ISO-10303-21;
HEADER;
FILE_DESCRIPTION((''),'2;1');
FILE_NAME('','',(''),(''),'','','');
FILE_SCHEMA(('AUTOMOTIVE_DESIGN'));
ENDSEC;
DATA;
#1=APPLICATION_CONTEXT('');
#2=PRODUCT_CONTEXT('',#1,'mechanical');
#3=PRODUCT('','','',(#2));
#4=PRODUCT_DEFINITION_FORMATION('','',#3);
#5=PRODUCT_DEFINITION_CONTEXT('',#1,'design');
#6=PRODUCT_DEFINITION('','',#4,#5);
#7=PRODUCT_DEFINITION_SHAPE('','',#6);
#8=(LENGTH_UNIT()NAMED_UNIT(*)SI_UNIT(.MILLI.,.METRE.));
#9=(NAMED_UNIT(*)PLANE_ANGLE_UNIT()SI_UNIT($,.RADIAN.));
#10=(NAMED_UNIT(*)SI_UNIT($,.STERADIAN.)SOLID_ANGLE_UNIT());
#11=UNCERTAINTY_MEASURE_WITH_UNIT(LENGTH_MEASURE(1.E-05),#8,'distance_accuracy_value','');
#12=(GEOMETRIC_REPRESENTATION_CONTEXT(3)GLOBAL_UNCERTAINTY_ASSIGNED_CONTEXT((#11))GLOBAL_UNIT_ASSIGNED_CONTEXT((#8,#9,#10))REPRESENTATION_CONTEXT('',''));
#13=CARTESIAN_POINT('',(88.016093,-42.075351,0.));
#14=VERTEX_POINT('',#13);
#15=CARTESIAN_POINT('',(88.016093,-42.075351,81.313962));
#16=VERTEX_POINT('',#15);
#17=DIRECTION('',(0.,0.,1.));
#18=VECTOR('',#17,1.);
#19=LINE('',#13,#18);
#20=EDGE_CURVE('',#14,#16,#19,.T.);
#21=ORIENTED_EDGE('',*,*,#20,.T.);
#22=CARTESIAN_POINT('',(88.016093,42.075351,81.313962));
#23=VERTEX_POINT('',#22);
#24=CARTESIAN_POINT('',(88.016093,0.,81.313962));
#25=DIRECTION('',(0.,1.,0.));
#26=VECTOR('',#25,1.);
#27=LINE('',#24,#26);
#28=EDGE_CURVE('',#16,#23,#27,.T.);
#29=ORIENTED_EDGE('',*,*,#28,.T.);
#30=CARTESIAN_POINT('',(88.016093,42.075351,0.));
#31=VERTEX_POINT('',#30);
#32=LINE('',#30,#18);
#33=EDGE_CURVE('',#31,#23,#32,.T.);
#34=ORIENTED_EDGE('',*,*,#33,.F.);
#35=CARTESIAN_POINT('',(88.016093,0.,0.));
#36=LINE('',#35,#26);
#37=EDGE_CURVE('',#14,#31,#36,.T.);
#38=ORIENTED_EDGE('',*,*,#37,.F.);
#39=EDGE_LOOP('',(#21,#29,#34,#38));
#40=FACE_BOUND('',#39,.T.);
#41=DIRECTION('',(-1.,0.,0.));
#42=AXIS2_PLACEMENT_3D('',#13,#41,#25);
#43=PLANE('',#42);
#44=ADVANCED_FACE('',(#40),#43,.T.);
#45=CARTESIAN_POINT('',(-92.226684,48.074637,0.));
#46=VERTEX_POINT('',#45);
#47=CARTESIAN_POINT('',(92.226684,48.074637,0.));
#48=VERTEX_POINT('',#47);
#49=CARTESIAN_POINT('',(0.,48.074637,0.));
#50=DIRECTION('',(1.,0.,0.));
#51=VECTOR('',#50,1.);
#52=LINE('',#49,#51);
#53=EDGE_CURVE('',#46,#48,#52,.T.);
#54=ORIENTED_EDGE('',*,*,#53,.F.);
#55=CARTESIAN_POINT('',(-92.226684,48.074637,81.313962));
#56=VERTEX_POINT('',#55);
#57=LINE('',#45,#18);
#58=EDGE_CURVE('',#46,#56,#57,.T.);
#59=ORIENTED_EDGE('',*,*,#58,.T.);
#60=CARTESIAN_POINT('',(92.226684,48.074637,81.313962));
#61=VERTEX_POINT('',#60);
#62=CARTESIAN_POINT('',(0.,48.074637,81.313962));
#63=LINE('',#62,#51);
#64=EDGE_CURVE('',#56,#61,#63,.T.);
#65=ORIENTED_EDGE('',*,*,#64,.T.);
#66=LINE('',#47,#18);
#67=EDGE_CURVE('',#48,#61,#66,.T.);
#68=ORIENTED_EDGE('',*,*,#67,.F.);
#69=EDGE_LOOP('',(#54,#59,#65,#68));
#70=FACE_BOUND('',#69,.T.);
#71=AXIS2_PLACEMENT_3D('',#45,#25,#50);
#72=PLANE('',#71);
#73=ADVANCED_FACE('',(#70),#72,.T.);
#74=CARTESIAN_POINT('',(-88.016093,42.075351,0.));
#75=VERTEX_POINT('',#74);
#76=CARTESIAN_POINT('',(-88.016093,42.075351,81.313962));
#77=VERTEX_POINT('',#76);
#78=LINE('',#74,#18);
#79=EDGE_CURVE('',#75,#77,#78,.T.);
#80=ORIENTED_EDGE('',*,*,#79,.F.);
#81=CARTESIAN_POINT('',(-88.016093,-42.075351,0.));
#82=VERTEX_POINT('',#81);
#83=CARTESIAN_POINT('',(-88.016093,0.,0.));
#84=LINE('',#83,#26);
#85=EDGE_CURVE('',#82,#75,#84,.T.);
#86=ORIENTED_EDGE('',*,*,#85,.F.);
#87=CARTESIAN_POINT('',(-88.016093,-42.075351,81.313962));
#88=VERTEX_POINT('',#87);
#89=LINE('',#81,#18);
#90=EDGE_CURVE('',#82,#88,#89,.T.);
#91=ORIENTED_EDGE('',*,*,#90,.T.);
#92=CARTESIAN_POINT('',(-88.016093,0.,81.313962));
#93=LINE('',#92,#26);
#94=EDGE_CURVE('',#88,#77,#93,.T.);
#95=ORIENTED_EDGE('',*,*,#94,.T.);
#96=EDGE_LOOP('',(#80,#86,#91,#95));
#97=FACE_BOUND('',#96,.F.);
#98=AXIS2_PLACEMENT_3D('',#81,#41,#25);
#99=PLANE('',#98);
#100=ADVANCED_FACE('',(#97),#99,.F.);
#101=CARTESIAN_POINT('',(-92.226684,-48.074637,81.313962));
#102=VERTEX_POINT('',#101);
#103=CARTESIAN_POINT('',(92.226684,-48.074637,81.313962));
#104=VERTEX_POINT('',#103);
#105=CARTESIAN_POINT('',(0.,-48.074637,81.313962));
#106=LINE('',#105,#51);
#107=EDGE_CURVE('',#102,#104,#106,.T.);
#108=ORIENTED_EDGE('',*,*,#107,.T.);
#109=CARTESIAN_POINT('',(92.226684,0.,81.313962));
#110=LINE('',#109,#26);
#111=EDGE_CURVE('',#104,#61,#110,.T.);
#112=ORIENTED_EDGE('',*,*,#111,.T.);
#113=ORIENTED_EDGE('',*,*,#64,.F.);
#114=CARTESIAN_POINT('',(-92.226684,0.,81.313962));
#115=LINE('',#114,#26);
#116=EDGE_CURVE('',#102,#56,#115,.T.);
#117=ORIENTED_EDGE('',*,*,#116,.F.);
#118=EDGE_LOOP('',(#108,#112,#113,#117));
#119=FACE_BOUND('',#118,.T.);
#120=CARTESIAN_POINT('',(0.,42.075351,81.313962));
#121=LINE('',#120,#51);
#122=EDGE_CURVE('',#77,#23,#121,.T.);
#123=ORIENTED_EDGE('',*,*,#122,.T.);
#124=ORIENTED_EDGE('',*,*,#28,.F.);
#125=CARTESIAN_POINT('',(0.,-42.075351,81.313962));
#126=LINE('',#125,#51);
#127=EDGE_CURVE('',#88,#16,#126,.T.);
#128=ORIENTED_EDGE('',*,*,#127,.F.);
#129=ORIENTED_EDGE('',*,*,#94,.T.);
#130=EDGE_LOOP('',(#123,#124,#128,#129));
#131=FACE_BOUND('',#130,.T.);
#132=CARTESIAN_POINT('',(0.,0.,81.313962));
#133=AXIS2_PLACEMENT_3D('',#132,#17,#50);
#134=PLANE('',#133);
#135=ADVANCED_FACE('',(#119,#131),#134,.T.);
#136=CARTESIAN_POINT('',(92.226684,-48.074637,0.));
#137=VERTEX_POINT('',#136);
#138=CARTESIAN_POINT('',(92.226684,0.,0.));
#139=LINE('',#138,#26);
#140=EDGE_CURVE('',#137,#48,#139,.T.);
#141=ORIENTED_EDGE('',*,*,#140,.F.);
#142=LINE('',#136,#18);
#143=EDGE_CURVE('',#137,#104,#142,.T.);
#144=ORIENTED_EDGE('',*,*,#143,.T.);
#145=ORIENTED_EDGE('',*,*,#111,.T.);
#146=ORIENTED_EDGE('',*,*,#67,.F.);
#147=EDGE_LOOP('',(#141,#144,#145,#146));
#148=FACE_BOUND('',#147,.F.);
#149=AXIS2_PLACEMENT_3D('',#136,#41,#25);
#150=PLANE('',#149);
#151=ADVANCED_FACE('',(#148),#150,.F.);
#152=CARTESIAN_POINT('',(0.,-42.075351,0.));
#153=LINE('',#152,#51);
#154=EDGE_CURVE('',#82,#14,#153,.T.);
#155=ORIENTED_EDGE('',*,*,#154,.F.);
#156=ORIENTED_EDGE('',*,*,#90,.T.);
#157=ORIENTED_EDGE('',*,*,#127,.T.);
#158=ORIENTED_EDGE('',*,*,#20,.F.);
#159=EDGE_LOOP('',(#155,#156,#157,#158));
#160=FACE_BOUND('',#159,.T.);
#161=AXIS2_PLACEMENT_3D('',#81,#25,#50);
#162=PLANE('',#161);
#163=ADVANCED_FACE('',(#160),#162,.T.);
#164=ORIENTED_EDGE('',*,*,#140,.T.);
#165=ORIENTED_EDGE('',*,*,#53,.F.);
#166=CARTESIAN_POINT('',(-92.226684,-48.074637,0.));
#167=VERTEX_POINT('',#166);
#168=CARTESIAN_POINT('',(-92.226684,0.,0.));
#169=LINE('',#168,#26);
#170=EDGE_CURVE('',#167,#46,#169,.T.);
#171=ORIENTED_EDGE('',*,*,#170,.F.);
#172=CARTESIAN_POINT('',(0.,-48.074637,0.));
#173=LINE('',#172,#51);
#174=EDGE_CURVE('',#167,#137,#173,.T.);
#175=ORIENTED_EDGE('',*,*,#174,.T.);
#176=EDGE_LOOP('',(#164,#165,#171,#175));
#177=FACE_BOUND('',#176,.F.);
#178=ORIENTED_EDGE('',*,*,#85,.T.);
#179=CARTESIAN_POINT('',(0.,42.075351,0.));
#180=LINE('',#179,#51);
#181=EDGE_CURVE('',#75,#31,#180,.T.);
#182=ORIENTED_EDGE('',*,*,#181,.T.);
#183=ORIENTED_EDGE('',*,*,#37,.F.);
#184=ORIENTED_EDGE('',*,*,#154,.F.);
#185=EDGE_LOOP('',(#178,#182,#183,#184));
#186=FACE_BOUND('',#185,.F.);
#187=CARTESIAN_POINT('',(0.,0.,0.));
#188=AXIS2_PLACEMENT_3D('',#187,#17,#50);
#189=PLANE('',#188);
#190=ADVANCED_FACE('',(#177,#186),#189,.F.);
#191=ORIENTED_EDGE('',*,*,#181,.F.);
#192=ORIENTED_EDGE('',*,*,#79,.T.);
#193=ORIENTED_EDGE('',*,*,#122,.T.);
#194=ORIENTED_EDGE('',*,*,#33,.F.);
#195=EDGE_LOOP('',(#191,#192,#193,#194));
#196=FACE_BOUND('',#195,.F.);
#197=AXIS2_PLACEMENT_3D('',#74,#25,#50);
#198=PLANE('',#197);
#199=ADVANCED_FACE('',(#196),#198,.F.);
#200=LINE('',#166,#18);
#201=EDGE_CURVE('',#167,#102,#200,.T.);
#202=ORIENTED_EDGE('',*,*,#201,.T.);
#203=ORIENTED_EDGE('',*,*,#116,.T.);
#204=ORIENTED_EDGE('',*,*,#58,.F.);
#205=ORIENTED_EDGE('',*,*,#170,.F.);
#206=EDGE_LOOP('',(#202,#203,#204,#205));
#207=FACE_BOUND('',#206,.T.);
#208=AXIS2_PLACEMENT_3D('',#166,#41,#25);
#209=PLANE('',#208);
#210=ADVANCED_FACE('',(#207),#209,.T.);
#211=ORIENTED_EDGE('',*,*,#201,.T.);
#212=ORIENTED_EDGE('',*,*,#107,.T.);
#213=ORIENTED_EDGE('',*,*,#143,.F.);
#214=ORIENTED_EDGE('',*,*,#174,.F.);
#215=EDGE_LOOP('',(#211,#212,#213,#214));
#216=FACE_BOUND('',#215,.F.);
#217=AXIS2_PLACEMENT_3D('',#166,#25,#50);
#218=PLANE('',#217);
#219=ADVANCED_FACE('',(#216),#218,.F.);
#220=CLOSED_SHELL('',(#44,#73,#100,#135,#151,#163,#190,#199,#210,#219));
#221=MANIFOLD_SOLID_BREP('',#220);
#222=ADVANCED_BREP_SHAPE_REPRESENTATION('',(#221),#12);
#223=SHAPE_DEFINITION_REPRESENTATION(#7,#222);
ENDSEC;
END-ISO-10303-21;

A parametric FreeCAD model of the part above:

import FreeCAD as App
import Part
import Sketcher

V = App.Vector

doc = App.newDocument("Part")
body = doc.addObject("PartDesign::Body", "Body")

# Sketch on XY plane
sketch1 = body.newObject("Sketcher::SketchObject", "Sketch")
sketch1.AttachmentSupport = (doc.getObject("XY_Plane"), [""])
sketch1.MapMode = "FlatFace"
sketch1.addGeometry([
    Part.LineSegment(V(-92, 48, 0), V(-92, -48, 0)),  # 0
    Part.LineSegment(V(-92, -48, 0), V(92, -48, 0)),  # 1
    Part.LineSegment(V(92, -48, 0), V(92, 48, 0)),  # 2
    Part.LineSegment(V(92, 48, 0), V(-92, 48, 0)),  # 3
    Part.LineSegment(V(88, -42, 0), V(-88, -42, 0)),  # 4
    Part.LineSegment(V(-88, -42, 0), V(-88, 42, 0)),  # 5
    Part.LineSegment(V(-88, 42, 0), V(88, 42, 0)),  # 6
    Part.LineSegment(V(88, 42, 0), V(88, -42, 0)),  # 7
], False)
sketch1.addConstraint([
    Sketcher.Constraint("Coincident", 0, 2, 1, 1),
    Sketcher.Constraint("Coincident", 1, 2, 2, 1),
    Sketcher.Constraint("Coincident", 2, 2, 3, 1),
    Sketcher.Constraint("Coincident", 3, 2, 0, 1),
    Sketcher.Constraint("Coincident", 4, 2, 5, 1),
    Sketcher.Constraint("Coincident", 5, 2, 6, 1),
    Sketcher.Constraint("Coincident", 6, 2, 7, 1),
    Sketcher.Constraint("Coincident", 7, 2, 4, 1),
    Sketcher.Constraint("Vertical", 0),
    Sketcher.Constraint("Horizontal", 1),
    Sketcher.Constraint("Vertical", 2),
    Sketcher.Constraint("Horizontal", 3),
    Sketcher.Constraint("Horizontal", 4),
    Sketcher.Constraint("Vertical", 5),
    Sketcher.Constraint("Horizontal", 6),
    Sketcher.Constraint("Vertical", 7),
    Sketcher.Constraint("Symmetric", 0, 2, 2, 2, -1, 1),
    Sketcher.Constraint("Symmetric", 4, 2, 6, 2, -1, 1),
    Sketcher.Constraint("DistanceY", 5, 1, 5, 2, 84.150702),
    Sketcher.Constraint("DistanceX", 1, 1, 1, 2, 184.453368),
    Sketcher.Constraint("DistanceX", 4, 2, 4, 1, 176.032186),
    Sketcher.Constraint("DistanceY", 0, 2, 0, 1, 96.149274),
])
pad1 = body.newObject("PartDesign::Pad", "Pad")
pad1.Profile = sketch1
pad1.Length = 81.313962

doc.recompute()
